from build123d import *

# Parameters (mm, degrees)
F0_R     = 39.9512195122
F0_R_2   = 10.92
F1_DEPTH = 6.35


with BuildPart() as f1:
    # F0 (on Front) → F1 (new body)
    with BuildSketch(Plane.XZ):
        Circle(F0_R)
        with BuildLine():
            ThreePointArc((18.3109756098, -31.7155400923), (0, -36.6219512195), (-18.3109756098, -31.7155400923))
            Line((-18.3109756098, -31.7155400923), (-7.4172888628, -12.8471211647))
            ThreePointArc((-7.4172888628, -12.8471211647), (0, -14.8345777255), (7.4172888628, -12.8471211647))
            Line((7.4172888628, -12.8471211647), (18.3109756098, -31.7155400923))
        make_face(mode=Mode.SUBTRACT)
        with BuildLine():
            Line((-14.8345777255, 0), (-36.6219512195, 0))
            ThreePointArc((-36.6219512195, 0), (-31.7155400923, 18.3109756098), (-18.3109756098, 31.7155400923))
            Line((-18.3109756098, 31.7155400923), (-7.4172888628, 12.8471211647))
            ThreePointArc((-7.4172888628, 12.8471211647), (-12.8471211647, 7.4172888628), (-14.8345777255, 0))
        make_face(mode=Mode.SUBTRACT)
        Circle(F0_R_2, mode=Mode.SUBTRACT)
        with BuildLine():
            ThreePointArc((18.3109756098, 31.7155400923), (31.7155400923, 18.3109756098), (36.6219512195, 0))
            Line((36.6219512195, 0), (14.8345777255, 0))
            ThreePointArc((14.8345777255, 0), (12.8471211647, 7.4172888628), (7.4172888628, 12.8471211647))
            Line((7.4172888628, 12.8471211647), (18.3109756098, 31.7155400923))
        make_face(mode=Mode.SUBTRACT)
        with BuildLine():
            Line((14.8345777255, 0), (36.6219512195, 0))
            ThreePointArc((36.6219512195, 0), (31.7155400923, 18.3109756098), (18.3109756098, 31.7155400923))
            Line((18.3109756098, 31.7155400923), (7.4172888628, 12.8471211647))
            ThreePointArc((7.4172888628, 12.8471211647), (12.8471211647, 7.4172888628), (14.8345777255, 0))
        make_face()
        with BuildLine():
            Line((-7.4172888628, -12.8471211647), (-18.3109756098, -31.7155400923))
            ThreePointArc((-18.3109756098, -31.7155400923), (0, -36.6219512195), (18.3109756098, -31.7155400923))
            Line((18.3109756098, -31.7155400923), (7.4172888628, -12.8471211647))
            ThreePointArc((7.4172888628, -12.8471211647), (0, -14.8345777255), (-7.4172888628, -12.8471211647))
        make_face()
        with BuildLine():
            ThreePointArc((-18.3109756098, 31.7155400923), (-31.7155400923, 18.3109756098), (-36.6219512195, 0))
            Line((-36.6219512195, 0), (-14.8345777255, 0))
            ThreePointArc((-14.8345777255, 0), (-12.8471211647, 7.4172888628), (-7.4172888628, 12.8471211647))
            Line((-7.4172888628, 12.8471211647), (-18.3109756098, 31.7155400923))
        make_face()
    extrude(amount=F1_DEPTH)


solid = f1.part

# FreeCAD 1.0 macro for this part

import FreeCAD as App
import Part
import Sketcher

V = App.Vector
Q = App.Units.Quantity

doc = App.newDocument("Part")
body = doc.addObject("PartDesign::Body", "Body")

# Sketch on XZ plane
sketch1 = body.newObject("Sketcher::SketchObject", "Sketch")
sketch1.AttachmentSupport = (doc.getObject("XZ_Plane"), [""])
sketch1.MapMode = "FlatFace"
sketch1.addGeometry([
    Part.Circle(V(0, 0, 0), V(0, 0, 1), 39.95122),
    Part.Circle(V(0, 0, 0), V(0, 0, 1), 10.92),
], False)
sketch1.addConstraint([
    Sketcher.Constraint("Coincident", 0, 3, -1, 1),
    Sketcher.Constraint("Coincident", 1, 3, -1, 1),
    Sketcher.Constraint("Diameter", 1, 21.84),
    Sketcher.Constraint("Diameter", 0, 79.902439),
])
pad1 = body.newObject("PartDesign::Pad", "Pad")
pad1.Profile = sketch1
pad1.Length = Q("0.25 in")

doc.recompute()
